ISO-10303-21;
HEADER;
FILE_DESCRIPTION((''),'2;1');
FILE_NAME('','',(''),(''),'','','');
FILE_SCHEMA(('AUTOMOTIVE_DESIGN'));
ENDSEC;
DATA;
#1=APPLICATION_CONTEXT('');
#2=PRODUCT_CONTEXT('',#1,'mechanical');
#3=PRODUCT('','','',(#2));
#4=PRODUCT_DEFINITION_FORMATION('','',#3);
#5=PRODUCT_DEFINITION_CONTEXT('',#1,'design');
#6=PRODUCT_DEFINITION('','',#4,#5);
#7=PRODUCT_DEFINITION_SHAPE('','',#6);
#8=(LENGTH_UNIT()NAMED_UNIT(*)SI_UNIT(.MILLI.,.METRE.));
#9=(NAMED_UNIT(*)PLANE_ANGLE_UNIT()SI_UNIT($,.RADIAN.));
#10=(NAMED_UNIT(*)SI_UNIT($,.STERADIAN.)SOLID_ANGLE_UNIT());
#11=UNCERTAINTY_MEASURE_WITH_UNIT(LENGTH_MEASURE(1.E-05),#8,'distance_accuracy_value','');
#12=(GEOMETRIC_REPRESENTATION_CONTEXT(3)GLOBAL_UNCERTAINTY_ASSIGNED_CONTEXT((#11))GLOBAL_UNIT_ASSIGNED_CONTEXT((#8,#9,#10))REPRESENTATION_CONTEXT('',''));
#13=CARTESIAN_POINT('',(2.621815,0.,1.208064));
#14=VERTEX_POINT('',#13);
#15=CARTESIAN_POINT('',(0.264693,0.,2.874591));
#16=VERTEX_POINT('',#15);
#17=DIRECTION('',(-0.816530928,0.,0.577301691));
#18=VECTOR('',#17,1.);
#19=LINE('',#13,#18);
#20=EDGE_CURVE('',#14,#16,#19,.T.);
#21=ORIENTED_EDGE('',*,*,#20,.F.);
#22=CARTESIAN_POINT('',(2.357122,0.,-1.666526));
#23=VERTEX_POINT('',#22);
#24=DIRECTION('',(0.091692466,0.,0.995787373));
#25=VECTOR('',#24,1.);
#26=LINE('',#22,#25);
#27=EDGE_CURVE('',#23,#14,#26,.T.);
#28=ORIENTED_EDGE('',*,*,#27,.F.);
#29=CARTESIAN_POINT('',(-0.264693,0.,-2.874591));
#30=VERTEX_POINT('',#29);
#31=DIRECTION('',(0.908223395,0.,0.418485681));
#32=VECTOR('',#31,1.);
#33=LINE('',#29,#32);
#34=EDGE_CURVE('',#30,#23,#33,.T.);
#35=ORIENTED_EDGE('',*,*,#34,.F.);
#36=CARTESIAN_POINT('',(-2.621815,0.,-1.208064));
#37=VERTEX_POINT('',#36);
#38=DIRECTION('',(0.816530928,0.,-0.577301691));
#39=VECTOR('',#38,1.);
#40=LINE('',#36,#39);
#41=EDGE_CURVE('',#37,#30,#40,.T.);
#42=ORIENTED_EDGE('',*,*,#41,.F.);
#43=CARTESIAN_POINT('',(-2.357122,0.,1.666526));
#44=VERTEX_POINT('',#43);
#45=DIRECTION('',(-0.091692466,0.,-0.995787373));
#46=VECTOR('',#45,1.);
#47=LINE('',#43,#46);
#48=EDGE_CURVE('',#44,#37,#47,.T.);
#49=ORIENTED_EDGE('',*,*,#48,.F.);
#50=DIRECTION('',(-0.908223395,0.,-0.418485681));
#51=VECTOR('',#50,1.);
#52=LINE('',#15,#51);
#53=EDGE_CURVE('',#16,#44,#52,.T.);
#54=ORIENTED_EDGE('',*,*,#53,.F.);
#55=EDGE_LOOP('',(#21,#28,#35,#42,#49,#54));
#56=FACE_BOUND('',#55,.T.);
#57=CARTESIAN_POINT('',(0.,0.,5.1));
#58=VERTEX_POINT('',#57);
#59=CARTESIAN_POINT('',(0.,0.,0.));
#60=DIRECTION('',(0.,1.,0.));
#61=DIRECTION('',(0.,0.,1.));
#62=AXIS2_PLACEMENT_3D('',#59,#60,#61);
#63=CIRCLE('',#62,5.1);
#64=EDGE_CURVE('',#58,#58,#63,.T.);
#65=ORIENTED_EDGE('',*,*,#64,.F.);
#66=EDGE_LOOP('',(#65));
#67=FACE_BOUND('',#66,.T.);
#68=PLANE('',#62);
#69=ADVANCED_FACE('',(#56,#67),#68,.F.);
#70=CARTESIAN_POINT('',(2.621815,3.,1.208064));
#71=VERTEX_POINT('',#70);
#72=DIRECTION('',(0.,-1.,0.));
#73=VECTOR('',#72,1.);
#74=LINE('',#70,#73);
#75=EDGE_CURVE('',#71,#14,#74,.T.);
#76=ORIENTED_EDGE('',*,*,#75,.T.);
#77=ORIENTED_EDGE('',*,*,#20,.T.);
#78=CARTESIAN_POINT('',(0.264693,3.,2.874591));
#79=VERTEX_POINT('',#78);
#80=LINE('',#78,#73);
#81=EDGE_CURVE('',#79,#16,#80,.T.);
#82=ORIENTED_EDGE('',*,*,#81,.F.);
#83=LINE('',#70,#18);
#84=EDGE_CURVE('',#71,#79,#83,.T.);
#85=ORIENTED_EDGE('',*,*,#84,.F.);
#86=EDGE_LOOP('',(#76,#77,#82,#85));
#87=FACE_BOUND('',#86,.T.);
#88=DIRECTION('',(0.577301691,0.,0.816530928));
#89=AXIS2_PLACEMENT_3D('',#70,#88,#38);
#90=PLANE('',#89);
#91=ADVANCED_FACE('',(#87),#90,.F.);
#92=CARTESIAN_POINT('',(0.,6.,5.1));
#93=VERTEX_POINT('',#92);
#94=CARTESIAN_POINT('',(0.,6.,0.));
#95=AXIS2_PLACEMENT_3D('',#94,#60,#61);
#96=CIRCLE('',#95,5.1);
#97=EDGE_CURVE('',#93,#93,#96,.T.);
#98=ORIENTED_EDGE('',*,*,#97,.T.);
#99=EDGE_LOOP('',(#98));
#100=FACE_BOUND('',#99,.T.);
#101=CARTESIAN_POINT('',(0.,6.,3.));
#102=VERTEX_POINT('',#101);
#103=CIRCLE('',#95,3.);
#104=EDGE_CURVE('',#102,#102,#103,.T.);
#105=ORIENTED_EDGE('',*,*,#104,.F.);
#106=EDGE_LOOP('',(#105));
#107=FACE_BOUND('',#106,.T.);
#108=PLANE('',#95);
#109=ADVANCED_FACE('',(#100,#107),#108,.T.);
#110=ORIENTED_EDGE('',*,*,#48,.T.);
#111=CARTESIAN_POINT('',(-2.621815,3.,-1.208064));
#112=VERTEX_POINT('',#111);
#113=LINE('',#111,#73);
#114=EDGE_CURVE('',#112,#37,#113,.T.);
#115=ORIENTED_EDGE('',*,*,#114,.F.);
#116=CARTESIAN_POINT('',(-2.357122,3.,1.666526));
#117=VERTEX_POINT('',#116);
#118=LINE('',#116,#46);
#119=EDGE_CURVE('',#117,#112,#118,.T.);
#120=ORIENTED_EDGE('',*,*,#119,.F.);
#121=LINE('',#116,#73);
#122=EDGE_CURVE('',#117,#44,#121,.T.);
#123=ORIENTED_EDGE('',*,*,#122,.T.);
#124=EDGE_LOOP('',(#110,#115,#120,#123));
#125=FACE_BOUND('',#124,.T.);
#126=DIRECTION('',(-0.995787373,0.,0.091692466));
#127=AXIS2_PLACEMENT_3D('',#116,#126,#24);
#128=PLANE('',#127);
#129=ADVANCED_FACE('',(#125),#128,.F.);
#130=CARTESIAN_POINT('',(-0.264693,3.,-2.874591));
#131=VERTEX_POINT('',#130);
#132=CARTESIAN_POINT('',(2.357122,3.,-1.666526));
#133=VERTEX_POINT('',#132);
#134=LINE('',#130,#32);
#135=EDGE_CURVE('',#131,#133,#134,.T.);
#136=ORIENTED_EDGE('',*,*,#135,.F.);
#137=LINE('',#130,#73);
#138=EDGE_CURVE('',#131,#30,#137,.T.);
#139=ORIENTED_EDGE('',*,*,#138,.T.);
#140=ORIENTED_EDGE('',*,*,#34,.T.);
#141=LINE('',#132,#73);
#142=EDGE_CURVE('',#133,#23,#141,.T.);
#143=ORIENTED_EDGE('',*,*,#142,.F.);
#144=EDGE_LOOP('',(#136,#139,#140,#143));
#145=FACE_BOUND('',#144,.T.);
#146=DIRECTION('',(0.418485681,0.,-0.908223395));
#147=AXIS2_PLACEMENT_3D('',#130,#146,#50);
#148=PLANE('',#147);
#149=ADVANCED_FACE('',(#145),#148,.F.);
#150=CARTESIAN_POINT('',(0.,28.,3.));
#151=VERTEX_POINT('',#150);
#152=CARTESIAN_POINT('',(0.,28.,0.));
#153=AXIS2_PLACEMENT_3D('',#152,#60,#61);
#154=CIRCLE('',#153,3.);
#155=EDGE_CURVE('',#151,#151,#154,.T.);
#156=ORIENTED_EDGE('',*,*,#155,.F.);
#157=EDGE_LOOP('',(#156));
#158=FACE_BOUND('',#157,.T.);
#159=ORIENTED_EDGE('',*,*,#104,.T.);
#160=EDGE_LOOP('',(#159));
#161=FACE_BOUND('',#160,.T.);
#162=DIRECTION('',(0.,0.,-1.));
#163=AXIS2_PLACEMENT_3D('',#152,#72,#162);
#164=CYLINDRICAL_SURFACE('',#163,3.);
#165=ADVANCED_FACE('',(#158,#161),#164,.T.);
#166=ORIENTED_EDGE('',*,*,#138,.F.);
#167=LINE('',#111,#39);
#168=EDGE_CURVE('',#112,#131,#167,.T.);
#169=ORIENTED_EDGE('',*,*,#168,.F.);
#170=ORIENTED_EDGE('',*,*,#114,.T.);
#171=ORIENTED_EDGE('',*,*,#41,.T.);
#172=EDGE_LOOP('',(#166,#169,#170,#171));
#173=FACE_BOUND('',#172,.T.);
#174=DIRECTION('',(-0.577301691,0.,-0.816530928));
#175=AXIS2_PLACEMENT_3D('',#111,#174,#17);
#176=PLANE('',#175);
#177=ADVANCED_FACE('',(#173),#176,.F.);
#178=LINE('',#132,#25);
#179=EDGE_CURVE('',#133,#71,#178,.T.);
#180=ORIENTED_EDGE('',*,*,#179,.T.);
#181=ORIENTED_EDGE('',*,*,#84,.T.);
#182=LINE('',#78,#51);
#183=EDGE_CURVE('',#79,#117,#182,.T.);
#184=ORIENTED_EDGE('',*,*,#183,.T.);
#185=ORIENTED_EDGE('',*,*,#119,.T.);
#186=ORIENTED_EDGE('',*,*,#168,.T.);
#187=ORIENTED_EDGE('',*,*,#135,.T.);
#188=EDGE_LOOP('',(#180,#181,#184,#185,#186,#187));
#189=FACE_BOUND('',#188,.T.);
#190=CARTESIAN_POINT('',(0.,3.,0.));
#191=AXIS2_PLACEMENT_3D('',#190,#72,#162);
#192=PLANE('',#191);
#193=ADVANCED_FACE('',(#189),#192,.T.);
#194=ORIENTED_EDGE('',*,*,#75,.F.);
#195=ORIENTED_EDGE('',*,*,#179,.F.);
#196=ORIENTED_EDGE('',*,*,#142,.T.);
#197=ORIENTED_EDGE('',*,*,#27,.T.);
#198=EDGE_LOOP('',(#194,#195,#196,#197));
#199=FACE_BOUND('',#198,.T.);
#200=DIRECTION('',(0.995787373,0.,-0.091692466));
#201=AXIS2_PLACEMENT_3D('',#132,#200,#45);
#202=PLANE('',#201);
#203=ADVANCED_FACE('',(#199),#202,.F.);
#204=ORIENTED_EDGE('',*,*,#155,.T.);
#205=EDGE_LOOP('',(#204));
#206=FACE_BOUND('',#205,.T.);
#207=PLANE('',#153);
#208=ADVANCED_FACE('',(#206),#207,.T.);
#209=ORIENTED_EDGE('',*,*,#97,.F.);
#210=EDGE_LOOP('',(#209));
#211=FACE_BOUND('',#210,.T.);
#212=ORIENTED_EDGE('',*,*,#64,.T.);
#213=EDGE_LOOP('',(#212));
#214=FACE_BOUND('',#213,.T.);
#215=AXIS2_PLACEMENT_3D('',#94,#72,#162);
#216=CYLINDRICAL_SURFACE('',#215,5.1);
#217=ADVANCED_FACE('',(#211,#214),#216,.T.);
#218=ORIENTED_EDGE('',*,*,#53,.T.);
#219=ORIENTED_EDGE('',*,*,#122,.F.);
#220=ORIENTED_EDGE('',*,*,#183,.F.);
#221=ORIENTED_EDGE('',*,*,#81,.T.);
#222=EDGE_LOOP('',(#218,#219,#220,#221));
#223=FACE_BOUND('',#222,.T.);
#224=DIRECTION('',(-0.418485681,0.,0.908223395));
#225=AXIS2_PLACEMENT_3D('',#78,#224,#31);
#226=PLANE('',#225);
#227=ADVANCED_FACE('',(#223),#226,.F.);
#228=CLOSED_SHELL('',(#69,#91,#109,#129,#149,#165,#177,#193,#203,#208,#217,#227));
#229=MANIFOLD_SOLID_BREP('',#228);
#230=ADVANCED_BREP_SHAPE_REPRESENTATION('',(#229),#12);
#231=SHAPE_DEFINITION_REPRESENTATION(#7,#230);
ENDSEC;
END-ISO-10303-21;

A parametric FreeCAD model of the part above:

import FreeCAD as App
import Part
import Sketcher
from FreeCAD import Vector


def add_polygon(sketch, points):
    """Adds a closed chain of lines whose ends are joined by coincident constraints."""
    first, n = sketch.GeometryCount, len(points)
    for a, b in zip(points, points[1:] + points[:1]):
        sketch.addGeometry(Part.LineSegment(App.Vector(*a, 0), App.Vector(*b, 0)), False)
    for i in range(n):
        sketch.addConstraint(Sketcher.Constraint("Coincident", first + i, 2, first + (i + 1) % n, 1))

doc = App.newDocument("Part")
body = doc.addObject("PartDesign::Body", "Body")

sketch1 = doc.addObject("Sketcher::SketchObject", "Sketch")
body.addObject(sketch1)
sketch1.AttachmentSupport = (doc.XZ_Plane, [""])
sketch1.MapMode = "FlatFace"
sketch1.addGeometry(Part.Circle(Vector(0, 0, 0), Vector(0, 0, 1), 5), False)
sketch1.addConstraint(Sketcher.Constraint("Coincident", 0, 3, -1, 1))
sketch1.addConstraint(Sketcher.Constraint("Diameter", 0, 10.2))
pad1 = doc.addObject("PartDesign::Pad", "Pad")
body.addObject(pad1)
pad1.Profile = sketch1
pad1.Length = 6
pad1.Reversed = True

sketch2 = doc.addObject("Sketcher::SketchObject", "Sketch001")
body.addObject(sketch2)
sketch2.AttachmentSupport = (doc.XZ_Plane, [""])
sketch2.MapMode = "FlatFace"
sketch2.AttachmentOffset = App.Placement(Vector(0, 0, -6), App.Rotation())
sketch2.addGeometry(Part.Circle(Vector(0, 0, 0), Vector(0, 0, 1), 3), False)
sketch2.addConstraint(Sketcher.Constraint("Coincident", 0, 3, -1, 1))
sketch2.addConstraint(Sketcher.Constraint("Diameter", 0, 6.0))
pad2 = doc.addObject("PartDesign::Pad", "Pad001")
body.addObject(pad2)
pad2.Profile = sketch2
pad2.Length = 22
pad2.Reversed = True

sketch3 = doc.addObject("Sketcher::SketchObject", "Sketch002")
body.addObject(sketch3)
sketch3.AttachmentSupport = (doc.XZ_Plane, [""])
sketch3.MapMode = "FlatFace"
add_polygon(sketch3, [(2.4, -1.7), (2.6, 1.2), (0.3, 2.9), (-2.4, 1.7), (-2.6, -1.2), (-0.3, -2.9)])
sketch3.addConstraint(Sketcher.Constraint("Symmetric", 0, 2, 3, 2, -1, 1))
sketch3.addConstraint(Sketcher.Constraint("Symmetric", 1, 2, 4, 2, -1, 1))
sketch3.addConstraint(Sketcher.Constraint("Symmetric", 2, 2, 5, 2, -1, 1))
sketch3.addConstraint(Sketcher.Constraint("Equal", 0, 1))
sketch3.addConstraint(Sketcher.Constraint("Equal", 1, 2))
sketch3.addConstraint(Sketcher.Constraint("Distance", 0, 2.886751))
sketch3.addConstraint(Sketcher.Constraint("DistanceY", -1, 1, 1, 2, 2.874591))
sketch3.addConstraint(Sketcher.Constraint("DistanceX", 2, 2, -1, 1, 2.357122))
sketch3.addConstraint(Sketcher.Constraint("DistanceX", 1, 2, 0, 2, 2.357122))
pocket1 = doc.addObject("PartDesign::Pocket", "Pocket")
body.addObject(pocket1)
pocket1.Profile = sketch3
pocket1.Length = 3

doc.recompute()
